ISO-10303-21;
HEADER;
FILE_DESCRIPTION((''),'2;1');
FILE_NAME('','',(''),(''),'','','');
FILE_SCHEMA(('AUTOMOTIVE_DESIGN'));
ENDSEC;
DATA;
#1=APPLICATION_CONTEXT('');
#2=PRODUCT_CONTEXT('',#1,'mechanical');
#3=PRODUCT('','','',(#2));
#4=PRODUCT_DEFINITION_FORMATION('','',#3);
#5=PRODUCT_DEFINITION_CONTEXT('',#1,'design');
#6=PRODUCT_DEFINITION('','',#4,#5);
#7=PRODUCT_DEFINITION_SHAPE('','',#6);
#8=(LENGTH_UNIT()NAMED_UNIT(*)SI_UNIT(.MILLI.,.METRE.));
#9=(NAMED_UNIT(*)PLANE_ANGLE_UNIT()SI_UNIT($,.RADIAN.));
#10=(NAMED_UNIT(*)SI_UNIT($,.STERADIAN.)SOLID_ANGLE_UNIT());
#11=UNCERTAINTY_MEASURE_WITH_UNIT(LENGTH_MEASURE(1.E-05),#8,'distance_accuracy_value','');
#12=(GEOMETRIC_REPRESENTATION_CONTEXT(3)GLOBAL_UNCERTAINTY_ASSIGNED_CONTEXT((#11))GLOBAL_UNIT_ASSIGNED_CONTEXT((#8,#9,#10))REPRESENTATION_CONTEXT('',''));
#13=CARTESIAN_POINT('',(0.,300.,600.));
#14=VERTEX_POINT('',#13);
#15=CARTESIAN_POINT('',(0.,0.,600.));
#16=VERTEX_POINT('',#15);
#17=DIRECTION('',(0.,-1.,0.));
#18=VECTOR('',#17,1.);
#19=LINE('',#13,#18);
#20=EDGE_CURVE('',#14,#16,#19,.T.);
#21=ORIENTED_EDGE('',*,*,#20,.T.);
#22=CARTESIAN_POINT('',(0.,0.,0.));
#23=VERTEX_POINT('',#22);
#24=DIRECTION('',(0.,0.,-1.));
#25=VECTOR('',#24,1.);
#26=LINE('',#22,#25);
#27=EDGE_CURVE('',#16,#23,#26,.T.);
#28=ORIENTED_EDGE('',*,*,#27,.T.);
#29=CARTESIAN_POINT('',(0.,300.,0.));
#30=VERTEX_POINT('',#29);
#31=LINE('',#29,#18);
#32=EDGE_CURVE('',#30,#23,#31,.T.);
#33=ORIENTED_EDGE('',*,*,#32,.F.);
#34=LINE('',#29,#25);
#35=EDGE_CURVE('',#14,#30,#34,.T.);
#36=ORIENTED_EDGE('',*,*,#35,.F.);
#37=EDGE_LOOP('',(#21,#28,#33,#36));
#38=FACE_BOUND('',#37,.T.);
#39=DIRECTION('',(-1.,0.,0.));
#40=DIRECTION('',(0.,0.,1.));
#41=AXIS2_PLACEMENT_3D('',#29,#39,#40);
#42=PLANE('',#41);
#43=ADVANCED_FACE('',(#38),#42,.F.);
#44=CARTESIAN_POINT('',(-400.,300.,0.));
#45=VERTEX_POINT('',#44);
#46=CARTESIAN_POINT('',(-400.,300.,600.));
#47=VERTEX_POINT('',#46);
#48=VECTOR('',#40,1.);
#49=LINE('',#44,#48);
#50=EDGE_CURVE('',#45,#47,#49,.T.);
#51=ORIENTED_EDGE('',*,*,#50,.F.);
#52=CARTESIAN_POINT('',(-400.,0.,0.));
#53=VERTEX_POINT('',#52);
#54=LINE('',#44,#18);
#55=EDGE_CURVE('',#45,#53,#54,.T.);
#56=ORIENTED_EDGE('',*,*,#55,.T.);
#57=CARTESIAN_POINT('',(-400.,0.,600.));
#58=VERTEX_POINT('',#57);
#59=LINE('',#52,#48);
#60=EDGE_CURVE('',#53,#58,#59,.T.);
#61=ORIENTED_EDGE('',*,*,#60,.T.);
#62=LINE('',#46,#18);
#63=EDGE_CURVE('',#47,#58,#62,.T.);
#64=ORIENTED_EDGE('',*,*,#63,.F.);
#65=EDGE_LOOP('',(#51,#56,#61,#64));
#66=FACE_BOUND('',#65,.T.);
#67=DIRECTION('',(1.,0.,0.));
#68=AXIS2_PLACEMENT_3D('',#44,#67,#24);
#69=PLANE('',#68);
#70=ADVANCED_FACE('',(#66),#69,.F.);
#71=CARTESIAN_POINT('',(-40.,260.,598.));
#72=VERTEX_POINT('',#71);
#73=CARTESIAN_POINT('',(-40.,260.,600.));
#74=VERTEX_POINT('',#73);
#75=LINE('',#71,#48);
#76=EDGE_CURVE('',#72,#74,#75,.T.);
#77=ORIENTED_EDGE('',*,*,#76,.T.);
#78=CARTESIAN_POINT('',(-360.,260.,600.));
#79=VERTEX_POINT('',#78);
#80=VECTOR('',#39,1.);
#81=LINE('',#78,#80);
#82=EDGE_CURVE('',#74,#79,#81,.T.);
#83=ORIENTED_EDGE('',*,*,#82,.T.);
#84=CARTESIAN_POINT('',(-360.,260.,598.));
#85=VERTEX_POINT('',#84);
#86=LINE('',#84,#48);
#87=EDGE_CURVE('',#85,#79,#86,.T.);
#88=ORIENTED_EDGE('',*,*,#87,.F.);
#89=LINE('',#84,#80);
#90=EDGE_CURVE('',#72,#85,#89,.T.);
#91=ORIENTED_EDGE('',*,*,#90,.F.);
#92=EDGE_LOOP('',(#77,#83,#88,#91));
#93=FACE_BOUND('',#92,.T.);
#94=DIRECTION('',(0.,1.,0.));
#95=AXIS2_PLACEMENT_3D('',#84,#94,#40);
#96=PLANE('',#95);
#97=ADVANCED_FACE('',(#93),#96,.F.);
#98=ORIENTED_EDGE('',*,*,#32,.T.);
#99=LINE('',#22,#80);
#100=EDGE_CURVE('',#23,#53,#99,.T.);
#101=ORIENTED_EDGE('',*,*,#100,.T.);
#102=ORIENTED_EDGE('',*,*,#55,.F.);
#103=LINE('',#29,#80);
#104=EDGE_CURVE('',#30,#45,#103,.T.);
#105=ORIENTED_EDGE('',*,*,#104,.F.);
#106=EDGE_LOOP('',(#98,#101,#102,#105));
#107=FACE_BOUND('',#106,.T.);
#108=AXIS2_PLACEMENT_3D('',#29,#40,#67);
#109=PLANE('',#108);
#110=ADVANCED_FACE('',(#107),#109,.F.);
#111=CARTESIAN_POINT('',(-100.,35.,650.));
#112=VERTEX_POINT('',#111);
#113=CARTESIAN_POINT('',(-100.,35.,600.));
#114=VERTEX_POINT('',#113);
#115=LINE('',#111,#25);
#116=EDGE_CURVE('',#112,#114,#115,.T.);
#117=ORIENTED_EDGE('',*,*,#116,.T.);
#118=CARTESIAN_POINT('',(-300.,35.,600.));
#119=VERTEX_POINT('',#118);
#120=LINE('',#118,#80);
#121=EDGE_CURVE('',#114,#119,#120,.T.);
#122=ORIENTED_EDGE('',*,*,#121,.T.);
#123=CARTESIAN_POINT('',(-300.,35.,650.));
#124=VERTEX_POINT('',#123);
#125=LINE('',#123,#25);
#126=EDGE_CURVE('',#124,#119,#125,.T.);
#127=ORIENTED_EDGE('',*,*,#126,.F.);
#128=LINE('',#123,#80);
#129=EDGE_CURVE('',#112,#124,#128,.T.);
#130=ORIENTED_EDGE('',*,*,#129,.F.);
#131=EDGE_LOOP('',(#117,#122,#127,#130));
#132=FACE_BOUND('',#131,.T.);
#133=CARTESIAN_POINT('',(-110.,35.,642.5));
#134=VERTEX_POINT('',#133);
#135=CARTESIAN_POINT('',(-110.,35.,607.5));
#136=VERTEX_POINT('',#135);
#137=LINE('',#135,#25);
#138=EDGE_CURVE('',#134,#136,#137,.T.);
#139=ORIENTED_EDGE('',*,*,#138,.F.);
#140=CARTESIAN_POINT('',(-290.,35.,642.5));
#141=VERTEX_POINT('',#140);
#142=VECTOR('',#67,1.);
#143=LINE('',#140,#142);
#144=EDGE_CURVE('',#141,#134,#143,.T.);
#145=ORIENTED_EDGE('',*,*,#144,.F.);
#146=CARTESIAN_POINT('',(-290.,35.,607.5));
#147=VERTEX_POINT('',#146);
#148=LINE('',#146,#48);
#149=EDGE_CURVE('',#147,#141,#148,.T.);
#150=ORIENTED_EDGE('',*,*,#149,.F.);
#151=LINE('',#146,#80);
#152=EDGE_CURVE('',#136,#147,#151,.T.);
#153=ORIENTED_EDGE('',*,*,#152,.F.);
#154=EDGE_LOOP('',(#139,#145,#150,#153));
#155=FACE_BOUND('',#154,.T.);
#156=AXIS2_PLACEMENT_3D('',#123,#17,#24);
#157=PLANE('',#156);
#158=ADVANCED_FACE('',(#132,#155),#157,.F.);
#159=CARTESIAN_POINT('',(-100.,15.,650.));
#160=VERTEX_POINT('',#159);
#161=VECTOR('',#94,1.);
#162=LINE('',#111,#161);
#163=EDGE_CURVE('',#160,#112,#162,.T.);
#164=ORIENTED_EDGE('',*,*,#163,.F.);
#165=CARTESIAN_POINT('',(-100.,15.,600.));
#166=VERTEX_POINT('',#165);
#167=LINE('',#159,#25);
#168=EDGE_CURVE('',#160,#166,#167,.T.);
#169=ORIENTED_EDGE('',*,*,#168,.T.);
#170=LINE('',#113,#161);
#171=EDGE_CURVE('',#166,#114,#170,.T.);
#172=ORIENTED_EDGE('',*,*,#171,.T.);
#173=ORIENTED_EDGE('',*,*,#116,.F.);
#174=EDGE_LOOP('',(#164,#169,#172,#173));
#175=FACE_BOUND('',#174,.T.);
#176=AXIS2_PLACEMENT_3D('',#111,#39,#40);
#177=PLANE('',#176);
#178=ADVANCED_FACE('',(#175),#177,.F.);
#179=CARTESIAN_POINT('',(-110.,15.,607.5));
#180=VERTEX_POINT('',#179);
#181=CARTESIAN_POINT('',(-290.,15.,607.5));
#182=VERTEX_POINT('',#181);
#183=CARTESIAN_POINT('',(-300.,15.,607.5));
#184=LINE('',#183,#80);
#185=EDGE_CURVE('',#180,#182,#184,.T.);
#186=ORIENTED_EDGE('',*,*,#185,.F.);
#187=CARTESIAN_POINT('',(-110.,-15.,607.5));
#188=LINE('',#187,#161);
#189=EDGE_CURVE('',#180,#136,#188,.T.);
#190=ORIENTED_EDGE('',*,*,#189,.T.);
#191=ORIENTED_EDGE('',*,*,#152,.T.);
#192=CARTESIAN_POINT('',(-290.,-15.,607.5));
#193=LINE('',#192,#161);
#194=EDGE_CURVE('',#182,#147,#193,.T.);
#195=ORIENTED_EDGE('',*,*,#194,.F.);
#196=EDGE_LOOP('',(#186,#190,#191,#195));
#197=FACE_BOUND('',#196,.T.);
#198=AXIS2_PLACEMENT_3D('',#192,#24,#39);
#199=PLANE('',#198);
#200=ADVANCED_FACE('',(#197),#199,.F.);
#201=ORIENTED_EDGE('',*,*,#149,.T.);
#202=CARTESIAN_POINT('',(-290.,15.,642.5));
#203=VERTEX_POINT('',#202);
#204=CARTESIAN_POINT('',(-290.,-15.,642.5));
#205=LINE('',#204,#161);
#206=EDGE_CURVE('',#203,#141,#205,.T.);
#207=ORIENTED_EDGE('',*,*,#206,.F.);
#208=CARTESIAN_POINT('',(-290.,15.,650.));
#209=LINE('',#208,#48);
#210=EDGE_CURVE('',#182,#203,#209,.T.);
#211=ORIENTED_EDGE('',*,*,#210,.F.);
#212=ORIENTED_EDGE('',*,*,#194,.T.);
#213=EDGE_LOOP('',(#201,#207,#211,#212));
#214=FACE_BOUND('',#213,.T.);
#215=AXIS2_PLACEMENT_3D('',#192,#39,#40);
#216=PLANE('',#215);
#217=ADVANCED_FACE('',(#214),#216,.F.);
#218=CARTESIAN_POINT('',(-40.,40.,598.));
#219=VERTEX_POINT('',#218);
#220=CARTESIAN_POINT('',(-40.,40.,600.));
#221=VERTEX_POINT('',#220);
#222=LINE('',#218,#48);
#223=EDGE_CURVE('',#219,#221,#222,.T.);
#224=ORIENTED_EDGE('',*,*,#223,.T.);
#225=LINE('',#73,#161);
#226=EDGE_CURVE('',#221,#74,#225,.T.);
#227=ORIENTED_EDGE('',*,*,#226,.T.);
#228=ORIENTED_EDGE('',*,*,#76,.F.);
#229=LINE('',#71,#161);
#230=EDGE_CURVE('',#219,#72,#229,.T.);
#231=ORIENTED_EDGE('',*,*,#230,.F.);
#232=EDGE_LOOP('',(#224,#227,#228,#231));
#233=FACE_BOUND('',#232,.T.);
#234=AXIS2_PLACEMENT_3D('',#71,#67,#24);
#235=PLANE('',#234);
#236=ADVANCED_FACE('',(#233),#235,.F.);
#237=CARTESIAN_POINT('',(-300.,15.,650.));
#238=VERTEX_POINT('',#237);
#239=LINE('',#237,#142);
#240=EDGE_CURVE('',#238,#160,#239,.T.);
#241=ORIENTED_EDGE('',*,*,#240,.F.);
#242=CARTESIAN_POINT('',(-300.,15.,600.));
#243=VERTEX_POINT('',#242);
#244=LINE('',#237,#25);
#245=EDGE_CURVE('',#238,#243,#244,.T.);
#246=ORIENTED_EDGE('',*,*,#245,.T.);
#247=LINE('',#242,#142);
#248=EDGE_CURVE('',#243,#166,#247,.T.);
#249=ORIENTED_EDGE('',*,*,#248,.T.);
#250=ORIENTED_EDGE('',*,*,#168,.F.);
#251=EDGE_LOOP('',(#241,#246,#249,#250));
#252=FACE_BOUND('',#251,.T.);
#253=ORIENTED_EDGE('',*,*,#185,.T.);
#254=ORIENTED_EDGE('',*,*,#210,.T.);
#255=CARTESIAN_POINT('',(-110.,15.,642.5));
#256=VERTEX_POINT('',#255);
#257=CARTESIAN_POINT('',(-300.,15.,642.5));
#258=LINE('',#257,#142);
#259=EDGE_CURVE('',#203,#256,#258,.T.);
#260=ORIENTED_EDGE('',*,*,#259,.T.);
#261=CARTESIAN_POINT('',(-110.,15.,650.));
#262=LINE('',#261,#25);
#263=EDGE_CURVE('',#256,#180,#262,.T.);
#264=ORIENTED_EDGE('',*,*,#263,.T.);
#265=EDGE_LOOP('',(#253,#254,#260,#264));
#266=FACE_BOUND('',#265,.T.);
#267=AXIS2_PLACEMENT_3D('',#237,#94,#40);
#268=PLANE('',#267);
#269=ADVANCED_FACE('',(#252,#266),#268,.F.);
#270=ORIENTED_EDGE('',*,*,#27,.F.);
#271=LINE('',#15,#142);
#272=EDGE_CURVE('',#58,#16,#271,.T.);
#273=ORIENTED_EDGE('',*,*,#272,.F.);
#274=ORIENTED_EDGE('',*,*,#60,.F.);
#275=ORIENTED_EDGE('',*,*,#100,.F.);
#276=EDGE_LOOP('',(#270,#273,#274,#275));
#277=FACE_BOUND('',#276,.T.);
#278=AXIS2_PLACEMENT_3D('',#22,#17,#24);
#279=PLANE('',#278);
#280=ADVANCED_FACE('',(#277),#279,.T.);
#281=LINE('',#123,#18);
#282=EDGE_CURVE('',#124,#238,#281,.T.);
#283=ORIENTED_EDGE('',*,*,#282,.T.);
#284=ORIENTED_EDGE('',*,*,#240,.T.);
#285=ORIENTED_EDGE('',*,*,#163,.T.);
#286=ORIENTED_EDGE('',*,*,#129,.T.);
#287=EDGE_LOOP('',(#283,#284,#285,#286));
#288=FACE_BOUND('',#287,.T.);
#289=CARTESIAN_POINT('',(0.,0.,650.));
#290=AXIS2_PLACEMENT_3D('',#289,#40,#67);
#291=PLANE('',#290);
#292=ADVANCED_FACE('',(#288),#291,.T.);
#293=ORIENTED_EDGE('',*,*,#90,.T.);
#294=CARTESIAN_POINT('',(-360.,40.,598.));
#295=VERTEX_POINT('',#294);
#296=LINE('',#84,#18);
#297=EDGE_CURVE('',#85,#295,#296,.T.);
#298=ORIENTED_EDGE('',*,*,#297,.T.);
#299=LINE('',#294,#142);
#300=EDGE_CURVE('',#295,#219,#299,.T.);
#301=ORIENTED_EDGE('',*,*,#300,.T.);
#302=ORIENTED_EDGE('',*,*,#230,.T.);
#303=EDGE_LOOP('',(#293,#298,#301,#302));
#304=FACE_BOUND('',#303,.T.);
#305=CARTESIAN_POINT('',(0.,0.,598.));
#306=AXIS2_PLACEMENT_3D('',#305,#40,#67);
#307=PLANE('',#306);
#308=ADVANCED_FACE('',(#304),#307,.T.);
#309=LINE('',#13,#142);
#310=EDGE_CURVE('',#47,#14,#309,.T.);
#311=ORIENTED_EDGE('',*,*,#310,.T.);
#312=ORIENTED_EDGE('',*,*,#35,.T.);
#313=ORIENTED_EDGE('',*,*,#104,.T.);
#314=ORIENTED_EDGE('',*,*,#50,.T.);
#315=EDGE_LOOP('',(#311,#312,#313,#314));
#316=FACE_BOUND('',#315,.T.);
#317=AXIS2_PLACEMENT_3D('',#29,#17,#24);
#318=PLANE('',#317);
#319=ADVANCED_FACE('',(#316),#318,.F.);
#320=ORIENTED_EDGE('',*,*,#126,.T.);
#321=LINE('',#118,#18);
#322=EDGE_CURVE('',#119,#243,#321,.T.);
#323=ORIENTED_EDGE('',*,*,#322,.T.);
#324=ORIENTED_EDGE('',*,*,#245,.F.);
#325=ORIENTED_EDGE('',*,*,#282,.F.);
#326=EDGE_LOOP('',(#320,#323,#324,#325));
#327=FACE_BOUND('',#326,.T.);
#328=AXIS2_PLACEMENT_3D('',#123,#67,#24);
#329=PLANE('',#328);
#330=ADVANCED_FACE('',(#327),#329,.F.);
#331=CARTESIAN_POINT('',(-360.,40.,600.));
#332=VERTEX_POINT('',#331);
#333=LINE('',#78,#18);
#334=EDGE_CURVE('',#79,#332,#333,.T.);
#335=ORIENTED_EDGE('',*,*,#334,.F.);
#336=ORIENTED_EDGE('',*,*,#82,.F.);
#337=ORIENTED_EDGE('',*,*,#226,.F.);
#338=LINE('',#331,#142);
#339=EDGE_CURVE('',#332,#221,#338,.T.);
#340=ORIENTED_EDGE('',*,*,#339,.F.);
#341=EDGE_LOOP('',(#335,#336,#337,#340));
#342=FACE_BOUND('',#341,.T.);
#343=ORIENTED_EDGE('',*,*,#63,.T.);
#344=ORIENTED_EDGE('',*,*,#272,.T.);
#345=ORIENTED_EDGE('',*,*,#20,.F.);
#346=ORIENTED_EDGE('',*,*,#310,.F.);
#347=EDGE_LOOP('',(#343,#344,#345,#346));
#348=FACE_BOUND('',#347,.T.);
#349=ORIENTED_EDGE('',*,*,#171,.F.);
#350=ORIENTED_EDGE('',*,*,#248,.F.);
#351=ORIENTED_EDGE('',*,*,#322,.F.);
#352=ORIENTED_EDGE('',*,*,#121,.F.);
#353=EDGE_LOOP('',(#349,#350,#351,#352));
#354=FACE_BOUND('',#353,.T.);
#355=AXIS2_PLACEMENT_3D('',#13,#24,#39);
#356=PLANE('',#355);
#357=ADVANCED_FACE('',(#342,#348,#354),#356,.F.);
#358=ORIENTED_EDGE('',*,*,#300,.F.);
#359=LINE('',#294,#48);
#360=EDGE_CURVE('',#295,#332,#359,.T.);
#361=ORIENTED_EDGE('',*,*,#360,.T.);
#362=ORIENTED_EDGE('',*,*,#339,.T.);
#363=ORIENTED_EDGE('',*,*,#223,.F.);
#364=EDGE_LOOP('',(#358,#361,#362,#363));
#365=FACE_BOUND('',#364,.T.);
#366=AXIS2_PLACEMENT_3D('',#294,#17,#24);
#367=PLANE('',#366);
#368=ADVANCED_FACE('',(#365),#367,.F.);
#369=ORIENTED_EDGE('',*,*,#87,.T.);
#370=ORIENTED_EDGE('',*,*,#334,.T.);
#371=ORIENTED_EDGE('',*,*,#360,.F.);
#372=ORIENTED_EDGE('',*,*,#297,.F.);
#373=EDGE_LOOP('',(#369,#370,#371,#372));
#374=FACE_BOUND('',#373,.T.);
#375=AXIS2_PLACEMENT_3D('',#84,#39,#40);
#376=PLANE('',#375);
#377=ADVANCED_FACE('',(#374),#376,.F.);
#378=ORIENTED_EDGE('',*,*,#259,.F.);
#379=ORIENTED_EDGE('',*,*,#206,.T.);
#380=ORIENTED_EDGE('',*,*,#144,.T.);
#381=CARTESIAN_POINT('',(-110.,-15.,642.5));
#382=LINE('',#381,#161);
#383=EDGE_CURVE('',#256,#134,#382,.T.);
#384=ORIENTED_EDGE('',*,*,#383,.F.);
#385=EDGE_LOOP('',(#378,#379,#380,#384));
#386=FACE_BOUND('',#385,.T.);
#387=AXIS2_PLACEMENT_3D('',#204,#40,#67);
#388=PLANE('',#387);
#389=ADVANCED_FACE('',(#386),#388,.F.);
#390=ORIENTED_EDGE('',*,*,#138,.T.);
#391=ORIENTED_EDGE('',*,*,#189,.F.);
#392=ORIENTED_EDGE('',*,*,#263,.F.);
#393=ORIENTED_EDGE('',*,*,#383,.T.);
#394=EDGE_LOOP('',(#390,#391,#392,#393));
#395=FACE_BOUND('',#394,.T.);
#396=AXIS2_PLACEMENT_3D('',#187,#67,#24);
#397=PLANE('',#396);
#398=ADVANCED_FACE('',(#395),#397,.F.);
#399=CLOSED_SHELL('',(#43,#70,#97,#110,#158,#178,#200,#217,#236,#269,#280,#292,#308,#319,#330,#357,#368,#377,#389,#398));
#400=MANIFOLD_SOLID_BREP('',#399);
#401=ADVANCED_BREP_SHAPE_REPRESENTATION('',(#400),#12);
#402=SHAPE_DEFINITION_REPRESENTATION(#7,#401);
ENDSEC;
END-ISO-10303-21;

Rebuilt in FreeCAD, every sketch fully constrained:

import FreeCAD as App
import Part
import Sketcher

V = App.Vector
Q = App.Units.Quantity


def add_polygon(sketch, points):
    """Adds a closed chain of lines whose ends are joined by coincident constraints."""
    first, n = sketch.GeometryCount, len(points)
    for a, b in zip(points, points[1:] + points[:1]):
        sketch.addGeometry(Part.LineSegment(App.Vector(*a, 0), App.Vector(*b, 0)), False)
    for i in range(n):
        sketch.addConstraint(Sketcher.Constraint("Coincident", first + i, 2, first + (i + 1) % n, 1))

doc = App.newDocument("Part")
params = doc.addObject("Spreadsheet::Sheet", "Params")
for row, (alias, value) in enumerate([
    ("sketch1_width", "400 mm"),
    ("sketch1_height", "600 mm"),
    ("pad1_length", "300 mm"),
    ("sketch2_width", "200 mm"),
    ("sketch2_height", "20 mm"),
    ("pad2_length", "50 mm"),
    ("sketch3_width", "180 mm"),
    ("sketch3_height", "35 mm"),
    ("pocket1_length", "50 mm"),
    ("sketch4_width", "320 mm"),
    ("sketch4_height", "220 mm"),
    ("pocket2_length", "2 mm"),
], start=1):
    params.set(f"A{row}", alias)
    params.set(f"B{row}", "=" + value)
    params.setAlias(f"B{row}", alias)

body = doc.addObject("PartDesign::Body", "Body")

# Sketch on XZ plane
sketch1 = body.newObject("Sketcher::SketchObject", "Sketch")
sketch1.AttachmentSupport = (doc.getObject("XZ_Plane"), [""])
sketch1.MapMode = "FlatFace"
add_polygon(sketch1, [(-400, 0), (-400, 600), (0, 600), (0, 0)])  # lines 0-3
sketch1.addConstraint([
    Sketcher.Constraint("Vertical", 0),
    Sketcher.Constraint("Horizontal", 1),
    Sketcher.Constraint("Vertical", 2),
    Sketcher.Constraint("Horizontal", 3),
    Sketcher.Constraint("Coincident", 2, 2, -1, 1),
    Sketcher.Constraint("DistanceX", 1, 1, 1, 2, Q("400 mm")),
    Sketcher.Constraint("DistanceY", 0, 1, 0, 2, Q("600 mm")),
])
sketch1.setExpression("Constraints[9]", "Params.sketch1_width")
sketch1.setExpression("Constraints[10]", "Params.sketch1_height")
pad1 = body.newObject("PartDesign::Pad", "Pad")
pad1.Profile = sketch1
pad1.setExpression("Length", "Params.pad1_length")
pad1.Reversed = True

# Sketch on XY plane
sketch2 = body.newObject("Sketcher::SketchObject", "Sketch001")
sketch2.AttachmentSupport = (doc.getObject("XY_Plane"), [""])
sketch2.MapMode = "FlatFace"
sketch2.AttachmentOffset = App.Placement(V(0, 0, 600), App.Rotation())
add_polygon(sketch2, [(-300, 35), (-300, 15), (-100, 15), (-100, 35)])  # lines 0-3
sketch2.addConstraint([
    Sketcher.Constraint("Vertical", 0),
    Sketcher.Constraint("Horizontal", 1),
    Sketcher.Constraint("Vertical", 2),
    Sketcher.Constraint("Horizontal", 3),
    Sketcher.Constraint("DistanceX", 1, 1, 1, 2, Q("200 mm")),
    Sketcher.Constraint("DistanceY", 0, 2, 0, 1, Q("20 mm")),
    Sketcher.Constraint("DistanceX", 0, 2, -1, 1, Q("300 mm")),
    Sketcher.Constraint("DistanceY", -1, 1, 0, 2, Q("15 mm")),
])
sketch2.setExpression("Constraints[8]", "Params.sketch2_width")
sketch2.setExpression("Constraints[9]", "Params.sketch2_height")
pad2 = body.newObject("PartDesign::Pad", "Pad001")
pad2.Profile = sketch2
pad2.setExpression("Length", "Params.pad2_length")

# Sketch on XZ plane
sketch3 = body.newObject("Sketcher::SketchObject", "Sketch002")
sketch3.AttachmentSupport = (doc.getObject("XZ_Plane"), [""])
sketch3.MapMode = "FlatFace"
sketch3.AttachmentOffset = App.Placement(V(0, 0, -35), App.Rotation())
add_polygon(sketch3, [(-290, 608), (-290, 642), (-110, 642), (-110, 608)])  # lines 0-3
sketch3.addConstraint([
    Sketcher.Constraint("Vertical", 0),
    Sketcher.Constraint("Horizontal", 1),
    Sketcher.Constraint("Vertical", 2),
    Sketcher.Constraint("Horizontal", 3),
    Sketcher.Constraint("DistanceX", 1, 1, 1, 2, Q("180 mm")),
    Sketcher.Constraint("DistanceY", 0, 1, 0, 2, Q("35 mm")),
    Sketcher.Constraint("DistanceX", 0, 2, -1, 1, Q("290 mm")),
    Sketcher.Constraint("DistanceY", -1, 1, 0, 2, Q("642.5 mm")),
])
sketch3.setExpression("Constraints[8]", "Params.sketch3_width")
sketch3.setExpression("Constraints[9]", "Params.sketch3_height")
pocket1 = body.newObject("PartDesign::Pocket", "Pocket")
pocket1.Profile = sketch3
pocket1.setExpression("Length", "Params.pocket1_length")
pocket1.Reversed = True

# Sketch on XY plane
sketch4 = body.newObject("Sketcher::SketchObject", "Sketch003")
sketch4.AttachmentSupport = (doc.getObject("XY_Plane"), [""])
sketch4.MapMode = "FlatFace"
sketch4.AttachmentOffset = App.Placement(V(0, 0, 600), App.Rotation())
add_polygon(sketch4, [(-360, 260), (-360, 40), (-40, 40), (-40, 260)])  # lines 0-3
sketch4.addConstraint([
    Sketcher.Constraint("Vertical", 0),
    Sketcher.Constraint("Horizontal", 1),
    Sketcher.Constraint("Vertical", 2),
    Sketcher.Constraint("Horizontal", 3),
    Sketcher.Constraint("DistanceX", 1, 1, 1, 2, Q("320 mm")),
    Sketcher.Constraint("DistanceY", 0, 2, 0, 1, Q("220 mm")),
    Sketcher.Constraint("DistanceX", 0, 2, -1, 1, Q("360 mm")),
    Sketcher.Constraint("DistanceY", -1, 1, 0, 2, Q("40 mm")),
])
sketch4.setExpression("Constraints[8]", "Params.sketch4_width")
sketch4.setExpression("Constraints[9]", "Params.sketch4_height")
pocket2 = body.newObject("PartDesign::Pocket", "Pocket001")
pocket2.Profile = sketch4
pocket2.setExpression("Length", "Params.pocket2_length")

doc.recompute()
